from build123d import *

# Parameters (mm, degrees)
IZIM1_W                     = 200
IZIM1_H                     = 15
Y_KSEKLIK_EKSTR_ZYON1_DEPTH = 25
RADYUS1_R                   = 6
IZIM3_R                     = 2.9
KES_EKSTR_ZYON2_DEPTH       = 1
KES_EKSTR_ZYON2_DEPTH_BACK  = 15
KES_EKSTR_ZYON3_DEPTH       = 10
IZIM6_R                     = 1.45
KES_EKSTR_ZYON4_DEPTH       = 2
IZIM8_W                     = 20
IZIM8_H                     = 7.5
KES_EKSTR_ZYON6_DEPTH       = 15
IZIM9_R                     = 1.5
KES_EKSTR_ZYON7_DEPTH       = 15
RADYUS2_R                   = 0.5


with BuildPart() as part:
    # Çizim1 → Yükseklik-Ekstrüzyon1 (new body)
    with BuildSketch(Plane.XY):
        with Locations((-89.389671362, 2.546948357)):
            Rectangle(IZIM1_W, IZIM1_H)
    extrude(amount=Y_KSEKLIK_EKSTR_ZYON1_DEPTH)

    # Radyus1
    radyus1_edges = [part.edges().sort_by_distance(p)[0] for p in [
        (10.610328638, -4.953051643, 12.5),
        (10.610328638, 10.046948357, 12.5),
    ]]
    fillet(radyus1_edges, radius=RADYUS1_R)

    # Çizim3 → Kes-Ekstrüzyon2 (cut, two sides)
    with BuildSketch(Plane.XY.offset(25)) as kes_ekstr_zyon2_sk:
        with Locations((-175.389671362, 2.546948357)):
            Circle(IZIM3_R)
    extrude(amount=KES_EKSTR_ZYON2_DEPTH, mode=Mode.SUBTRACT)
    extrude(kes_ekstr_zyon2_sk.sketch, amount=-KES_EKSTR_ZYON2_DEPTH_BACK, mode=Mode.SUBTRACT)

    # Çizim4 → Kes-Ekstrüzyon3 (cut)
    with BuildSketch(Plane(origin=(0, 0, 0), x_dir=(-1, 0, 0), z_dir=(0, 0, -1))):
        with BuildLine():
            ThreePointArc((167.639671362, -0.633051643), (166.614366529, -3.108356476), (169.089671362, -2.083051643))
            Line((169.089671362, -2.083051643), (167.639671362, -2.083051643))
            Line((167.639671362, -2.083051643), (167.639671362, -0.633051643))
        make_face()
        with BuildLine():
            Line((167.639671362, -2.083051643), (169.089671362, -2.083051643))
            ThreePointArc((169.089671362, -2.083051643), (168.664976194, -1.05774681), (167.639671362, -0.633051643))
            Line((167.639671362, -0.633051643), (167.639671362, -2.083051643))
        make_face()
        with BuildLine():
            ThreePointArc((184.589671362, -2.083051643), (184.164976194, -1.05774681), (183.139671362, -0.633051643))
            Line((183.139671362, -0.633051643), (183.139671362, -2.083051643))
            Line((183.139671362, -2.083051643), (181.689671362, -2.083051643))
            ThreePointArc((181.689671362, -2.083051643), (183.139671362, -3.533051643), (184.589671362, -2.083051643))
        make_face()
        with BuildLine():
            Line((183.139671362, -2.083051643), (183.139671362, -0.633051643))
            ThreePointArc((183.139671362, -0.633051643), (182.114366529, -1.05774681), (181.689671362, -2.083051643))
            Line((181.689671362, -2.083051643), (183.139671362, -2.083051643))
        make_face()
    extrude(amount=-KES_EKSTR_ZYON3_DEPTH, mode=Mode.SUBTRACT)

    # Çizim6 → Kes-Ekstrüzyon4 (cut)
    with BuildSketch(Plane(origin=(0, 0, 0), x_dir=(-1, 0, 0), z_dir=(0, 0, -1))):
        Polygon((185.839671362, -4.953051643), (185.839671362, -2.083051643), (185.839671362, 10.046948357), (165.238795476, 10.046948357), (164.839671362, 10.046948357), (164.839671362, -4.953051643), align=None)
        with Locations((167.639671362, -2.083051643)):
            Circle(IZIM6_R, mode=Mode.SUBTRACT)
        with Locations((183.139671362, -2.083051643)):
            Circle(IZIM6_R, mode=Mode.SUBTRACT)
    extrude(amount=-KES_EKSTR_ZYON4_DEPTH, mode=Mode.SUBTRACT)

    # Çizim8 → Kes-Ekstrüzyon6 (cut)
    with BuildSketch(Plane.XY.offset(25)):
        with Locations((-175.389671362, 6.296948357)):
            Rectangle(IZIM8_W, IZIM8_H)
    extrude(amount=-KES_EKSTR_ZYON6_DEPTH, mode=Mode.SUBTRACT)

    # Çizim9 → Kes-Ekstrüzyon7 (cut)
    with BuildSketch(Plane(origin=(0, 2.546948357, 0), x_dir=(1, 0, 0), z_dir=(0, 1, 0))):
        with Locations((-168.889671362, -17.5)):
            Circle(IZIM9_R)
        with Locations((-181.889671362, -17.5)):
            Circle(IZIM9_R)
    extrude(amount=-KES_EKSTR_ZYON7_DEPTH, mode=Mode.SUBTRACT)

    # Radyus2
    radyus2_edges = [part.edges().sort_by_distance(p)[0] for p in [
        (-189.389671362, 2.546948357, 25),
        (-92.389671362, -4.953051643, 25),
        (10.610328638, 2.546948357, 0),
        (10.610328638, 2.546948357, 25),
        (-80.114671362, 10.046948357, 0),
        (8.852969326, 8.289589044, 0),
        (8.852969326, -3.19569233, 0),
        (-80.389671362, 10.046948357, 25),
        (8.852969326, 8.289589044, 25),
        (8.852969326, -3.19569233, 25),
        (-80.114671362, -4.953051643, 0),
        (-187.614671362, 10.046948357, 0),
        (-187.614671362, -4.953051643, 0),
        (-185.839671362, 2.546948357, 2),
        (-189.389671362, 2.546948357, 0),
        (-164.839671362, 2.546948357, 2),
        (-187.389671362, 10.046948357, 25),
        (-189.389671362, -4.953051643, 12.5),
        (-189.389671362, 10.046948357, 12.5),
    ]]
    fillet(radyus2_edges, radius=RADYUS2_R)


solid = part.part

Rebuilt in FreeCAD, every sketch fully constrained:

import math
import FreeCAD as App
import Part
import Sketcher

V = App.Vector


def edges_at(feature, points):
    """Names of the edges that pass closest to the given points."""
    edges = feature.Shape.Edges
    near = lambda p: min(range(len(edges)), key=lambda i: edges[i].distToShape(Part.Vertex(*p))[0])
    return sorted({f"Edge{near(p) + 1}" for p in points})

doc = App.newDocument("Part")
body = doc.addObject("PartDesign::Body", "Body")

sketch1 = body.newObject("Sketcher::SketchObject", "Sketch")
sketch1.AttachmentSupport = (doc.getObject("XY_Plane"), [""])
sketch1.MapMode = "FlatFace"
sketch1.addGeometry(Part.LineSegment(V(-189, 10, 0), V(-189, -5, 0)), False)
sketch1.addGeometry(Part.LineSegment(V(-189, -5, 0), V(11, -5, 0)), False)
sketch1.addGeometry(Part.LineSegment(V(11, -5, 0), V(11, 10, 0)), False)
sketch1.addGeometry(Part.LineSegment(V(11, 10, 0), V(-189, 10, 0)), False)
sketch1.addConstraint(Sketcher.Constraint("Coincident", 0, 2, 1, 1))
sketch1.addConstraint(Sketcher.Constraint("Coincident", 1, 2, 2, 1))
sketch1.addConstraint(Sketcher.Constraint("Coincident", 2, 2, 3, 1))
sketch1.addConstraint(Sketcher.Constraint("Coincident", 3, 2, 0, 1))
sketch1.addConstraint(Sketcher.Constraint("Vertical", 0))
sketch1.addConstraint(Sketcher.Constraint("Horizontal", 1))
sketch1.addConstraint(Sketcher.Constraint("Vertical", 2))
sketch1.addConstraint(Sketcher.Constraint("Horizontal", 3))
sketch1.addConstraint(Sketcher.Constraint("DistanceX", 1, 1, 1, 2, 200.0))
sketch1.addConstraint(Sketcher.Constraint("DistanceY", 0, 2, 0, 1, 15.0))
sketch1.addConstraint(Sketcher.Constraint("DistanceX", 0, 2, -1, 1, 189.389671))
sketch1.addConstraint(Sketcher.Constraint("DistanceY", 0, 2, -1, 1, 4.953052))
pad1 = body.newObject("PartDesign::Pad", "Pad")
pad1.Profile = sketch1
pad1.Length = 25
doc.recompute()

fillet = body.newObject("PartDesign::Fillet", "Fillet")
fillet.Base = (pad1, edges_at(pad1, [(10.61, -4.953, 12.5), (10.61, 10.047, 12.5)]))
fillet.Radius = 6

sketch2 = body.newObject("Sketcher::SketchObject", "Sketch001")
sketch2.AttachmentSupport = (doc.getObject("XY_Plane"), [""])
sketch2.MapMode = "FlatFace"
sketch2.AttachmentOffset = App.Placement(V(0, 0, 25), App.Rotation())
sketch2.addGeometry(Part.Circle(V(-175.4, 2.5, 0), V(0, 0, 1), 2.9), False)
sketch2.addConstraint(Sketcher.Constraint("Diameter", 0, 5.8))
sketch2.addConstraint(Sketcher.Constraint("DistanceX", 0, 3, -1, 1, 175.389671))
sketch2.addConstraint(Sketcher.Constraint("DistanceY", -1, 1, 0, 3, 2.546948))
pocket1 = body.newObject("PartDesign::Pocket", "Pocket")
pocket1.Profile = sketch2
pocket1.Type = "TwoLengths"
pocket1.Length = 1
pocket1.Length2 = 15
pocket1.Reversed = True

sketch3 = body.newObject("Sketcher::SketchObject", "Sketch002")
sketch3.AttachmentSupport = (doc.getObject("XY_Plane"), [""])
sketch3.MapMode = "FlatFace"
sketch3.addGeometry(Part.ArcOfCircle(Part.Circle(V(-167.6, -2.1, 0), V(0, 0, 1), 1.4), math.radians(180), math.radians(450)), False)
sketch3.addGeometry(Part.ArcOfCircle(Part.Circle(V(-167.6, -2.1, 0), V(0, 0, 1), 1.5), math.radians(90), math.radians(180)), False)
sketch3.addGeometry(Part.ArcOfCircle(Part.Circle(V(-183.1, -2.1, 0), V(0, 0, 1), 1.5), math.radians(90), math.radians(180)), False)
sketch3.addGeometry(Part.ArcOfCircle(Part.Circle(V(-183.1, -2.1, 0), V(0, 0, 1), 1.4), math.radians(0), math.radians(90)), False)
sketch3.addGeometry(Part.ArcOfCircle(Part.Circle(V(-183.1, -2.1, 0), V(0, 0, 1), 1.4), math.radians(180), math.radians(360)), False)
sketch3.addConstraint(Sketcher.Constraint("Tangent", 0, 1, 1, 2))
sketch3.addConstraint(Sketcher.Constraint("Coincident", 1, 1, 0, 2))
sketch3.addConstraint(Sketcher.Constraint("Tangent", 2, 1, 3, 2))
sketch3.addConstraint(Sketcher.Constraint("Tangent", 3, 1, 4, 2))
sketch3.addConstraint(Sketcher.Constraint("Tangent", 4, 1, 2, 2))
sketch3.addConstraint(Sketcher.Constraint("Equal", 1, 2))
sketch3.addConstraint(Sketcher.Constraint("Horizontal", 1, 3, 2, 3))
sketch3.addConstraint(Sketcher.Constraint("Horizontal", 4, 3, 0, 1))
sketch3.addConstraint(Sketcher.Constraint("Horizontal", 0, 1, 3, 1))
sketch3.addConstraint(Sketcher.Constraint("Horizontal", 3, 1, 4, 1))
sketch3.addConstraint(Sketcher.Constraint("Vertical", 0, 3, 1, 1))
sketch3.addConstraint(Sketcher.Constraint("Vertical", 4, 3, 2, 1))
sketch3.addConstraint(Sketcher.Constraint("Radius", 0, 1.45))
sketch3.addConstraint(Sketcher.Constraint("DistanceX", 2, 3, 0, 3, 15.5))
sketch3.addConstraint(Sketcher.Constraint("DistanceX", 0, 3, -1, 1, 167.639671))
sketch3.addConstraint(Sketcher.Constraint("DistanceY", 0, 3, -1, 1, 2.083052))
pocket2 = body.newObject("PartDesign::Pocket", "Pocket001")
pocket2.Profile = sketch3
pocket2.Length = 10
pocket2.Reversed = True

sketch4 = body.newObject("Sketcher::SketchObject", "Sketch003")
sketch4.AttachmentSupport = (doc.getObject("XY_Plane"), [""])
sketch4.MapMode = "FlatFace"
sketch4.addGeometry(Part.LineSegment(V(-185.8, -5, 0), V(-185.8, 10, 0)), False)
sketch4.addGeometry(Part.LineSegment(V(-185.8, 10, 0), V(-164.8, 10, 0)), False)
sketch4.addGeometry(Part.LineSegment(V(-164.8, 10, 0), V(-164.8, -5, 0)), False)
sketch4.addGeometry(Part.LineSegment(V(-164.8, -5, 0), V(-185.8, -5, 0)), False)
sketch4.addGeometry(Part.Circle(V(-167.6, -2.1, 0), V(0, 0, 1), 1.4), False)
sketch4.addGeometry(Part.Circle(V(-183.1, -2.1, 0), V(0, 0, 1), 1.4), False)
sketch4.addConstraint(Sketcher.Constraint("Coincident", 0, 2, 1, 1))
sketch4.addConstraint(Sketcher.Constraint("Coincident", 1, 2, 2, 1))
sketch4.addConstraint(Sketcher.Constraint("Coincident", 2, 2, 3, 1))
sketch4.addConstraint(Sketcher.Constraint("Coincident", 3, 2, 0, 1))
sketch4.addConstraint(Sketcher.Constraint("Vertical", 0))
sketch4.addConstraint(Sketcher.Constraint("Horizontal", 1))
sketch4.addConstraint(Sketcher.Constraint("Vertical", 2))
sketch4.addConstraint(Sketcher.Constraint("Horizontal", 3))
sketch4.addConstraint(Sketcher.Constraint("Equal", 4, 5))
sketch4.addConstraint(Sketcher.Constraint("Horizontal", 4, 3, 5, 3))
sketch4.addConstraint(Sketcher.Constraint("Diameter", 4, 2.9))
sketch4.addConstraint(Sketcher.Constraint("DistanceX", 1, 1, 1, 2, 21.0))
sketch4.addConstraint(Sketcher.Constraint("DistanceY", 0, 1, 0, 2, 15.0))
sketch4.addConstraint(Sketcher.Constraint("DistanceX", 5, 3, 4, 3, 15.5))
sketch4.addConstraint(Sketcher.Constraint("DistanceX", 0, 2, 5, 3, 2.7))
sketch4.addConstraint(Sketcher.Constraint("DistanceY", 5, 3, 0, 2, 12.13))
sketch4.addConstraint(Sketcher.Constraint("DistanceX", 4, 3, -1, 1, 167.639671))
sketch4.addConstraint(Sketcher.Constraint("DistanceY", 4, 3, -1, 1, 2.083052))
pocket3 = body.newObject("PartDesign::Pocket", "Pocket002")
pocket3.Profile = sketch4
pocket3.Length = 2
pocket3.Reversed = True

sketch5 = body.newObject("Sketcher::SketchObject", "Sketch004")
sketch5.AttachmentSupport = (doc.getObject("XY_Plane"), [""])
sketch5.MapMode = "FlatFace"
sketch5.AttachmentOffset = App.Placement(V(0, 0, 25), App.Rotation())
sketch5.addGeometry(Part.LineSegment(V(-185, 10, 0), V(-185, 3, 0)), False)
sketch5.addGeometry(Part.LineSegment(V(-185, 3, 0), V(-165, 3, 0)), False)
sketch5.addGeometry(Part.LineSegment(V(-165, 3, 0), V(-165, 10, 0)), False)
sketch5.addGeometry(Part.LineSegment(V(-165, 10, 0), V(-185, 10, 0)), False)
sketch5.addConstraint(Sketcher.Constraint("Coincident", 0, 2, 1, 1))
sketch5.addConstraint(Sketcher.Constraint("Coincident", 1, 2, 2, 1))
sketch5.addConstraint(Sketcher.Constraint("Coincident", 2, 2, 3, 1))
sketch5.addConstraint(Sketcher.Constraint("Coincident", 3, 2, 0, 1))
sketch5.addConstraint(Sketcher.Constraint("Vertical", 0))
sketch5.addConstraint(Sketcher.Constraint("Horizontal", 1))
sketch5.addConstraint(Sketcher.Constraint("Vertical", 2))
sketch5.addConstraint(Sketcher.Constraint("Horizontal", 3))
sketch5.addConstraint(Sketcher.Constraint("DistanceX", 1, 1, 1, 2, 20.0))
sketch5.addConstraint(Sketcher.Constraint("DistanceY", 0, 2, 0, 1, 7.5))
sketch5.addConstraint(Sketcher.Constraint("DistanceX", 0, 2, -1, 1, 185.389671))
sketch5.addConstraint(Sketcher.Constraint("DistanceY", -1, 1, 0, 2, 2.546948))
pocket4 = body.newObject("PartDesign::Pocket", "Pocket003")
pocket4.Profile = sketch5
pocket4.Length = 15

sketch6 = body.newObject("Sketcher::SketchObject", "Sketch005")
sketch6.AttachmentSupport = (doc.getObject("XZ_Plane"), [""])
sketch6.MapMode = "FlatFace"
sketch6.AttachmentOffset = App.Placement(V(0, 0, -2.546948), App.Rotation())
sketch6.addGeometry(Part.Circle(V(-168.9, 17.5, 0), V(0, 0, 1), 1.5), False)
sketch6.addGeometry(Part.Circle(V(-181.9, 17.5, 0), V(0, 0, 1), 1.5), False)
sketch6.addConstraint(Sketcher.Constraint("Equal", 0, 1))
sketch6.addConstraint(Sketcher.Constraint("Horizontal", 0, 3, 1, 3))
sketch6.addConstraint(Sketcher.Constraint("Diameter", 0, 3.0))
sketch6.addConstraint(Sketcher.Constraint("DistanceX", 1, 3, 0, 3, 13.0))
sketch6.addConstraint(Sketcher.Constraint("DistanceY", -1, 1, 0, 3, 17.5))
sketch6.addConstraint(Sketcher.Constraint("DistanceX", 0, 3, -1, 1, 168.889671))
pocket5 = body.newObject("PartDesign::Pocket", "Pocket004")
pocket5.Profile = sketch6
pocket5.Length = 15
pocket5.Reversed = True
doc.recompute()

fillet2 = body.newObject("PartDesign::Fillet", "Fillet001")
fillet2.Base = (pocket5, edges_at(pocket5, [
    (-189.39, 2.547, 25),
    (-92.39, -4.953, 25),
    (10.61, 2.547, 0),
    (10.61, 2.547, 25),
    (-80.115, 10.047, 0),
    (8.853, 8.29, 0),
    (8.853, -3.196, 0),
    (-80.39, 10.047, 25),
    (8.853, 8.29, 25),
    (8.853, -3.196, 25),
    (-80.115, -4.953, 0),
    (-187.615, 10.047, 0),
    (-187.615, -4.953, 0),
    (-185.84, 2.547, 2),
    (-189.39, 2.547, 0),
    (-164.84, 2.547, 2),
    (-187.39, 10.047, 25),
    (-189.39, -4.953, 12.5),
    (-189.39, 10.047, 12.5),
]))
fillet2.Radius = 0.5

doc.recompute()
